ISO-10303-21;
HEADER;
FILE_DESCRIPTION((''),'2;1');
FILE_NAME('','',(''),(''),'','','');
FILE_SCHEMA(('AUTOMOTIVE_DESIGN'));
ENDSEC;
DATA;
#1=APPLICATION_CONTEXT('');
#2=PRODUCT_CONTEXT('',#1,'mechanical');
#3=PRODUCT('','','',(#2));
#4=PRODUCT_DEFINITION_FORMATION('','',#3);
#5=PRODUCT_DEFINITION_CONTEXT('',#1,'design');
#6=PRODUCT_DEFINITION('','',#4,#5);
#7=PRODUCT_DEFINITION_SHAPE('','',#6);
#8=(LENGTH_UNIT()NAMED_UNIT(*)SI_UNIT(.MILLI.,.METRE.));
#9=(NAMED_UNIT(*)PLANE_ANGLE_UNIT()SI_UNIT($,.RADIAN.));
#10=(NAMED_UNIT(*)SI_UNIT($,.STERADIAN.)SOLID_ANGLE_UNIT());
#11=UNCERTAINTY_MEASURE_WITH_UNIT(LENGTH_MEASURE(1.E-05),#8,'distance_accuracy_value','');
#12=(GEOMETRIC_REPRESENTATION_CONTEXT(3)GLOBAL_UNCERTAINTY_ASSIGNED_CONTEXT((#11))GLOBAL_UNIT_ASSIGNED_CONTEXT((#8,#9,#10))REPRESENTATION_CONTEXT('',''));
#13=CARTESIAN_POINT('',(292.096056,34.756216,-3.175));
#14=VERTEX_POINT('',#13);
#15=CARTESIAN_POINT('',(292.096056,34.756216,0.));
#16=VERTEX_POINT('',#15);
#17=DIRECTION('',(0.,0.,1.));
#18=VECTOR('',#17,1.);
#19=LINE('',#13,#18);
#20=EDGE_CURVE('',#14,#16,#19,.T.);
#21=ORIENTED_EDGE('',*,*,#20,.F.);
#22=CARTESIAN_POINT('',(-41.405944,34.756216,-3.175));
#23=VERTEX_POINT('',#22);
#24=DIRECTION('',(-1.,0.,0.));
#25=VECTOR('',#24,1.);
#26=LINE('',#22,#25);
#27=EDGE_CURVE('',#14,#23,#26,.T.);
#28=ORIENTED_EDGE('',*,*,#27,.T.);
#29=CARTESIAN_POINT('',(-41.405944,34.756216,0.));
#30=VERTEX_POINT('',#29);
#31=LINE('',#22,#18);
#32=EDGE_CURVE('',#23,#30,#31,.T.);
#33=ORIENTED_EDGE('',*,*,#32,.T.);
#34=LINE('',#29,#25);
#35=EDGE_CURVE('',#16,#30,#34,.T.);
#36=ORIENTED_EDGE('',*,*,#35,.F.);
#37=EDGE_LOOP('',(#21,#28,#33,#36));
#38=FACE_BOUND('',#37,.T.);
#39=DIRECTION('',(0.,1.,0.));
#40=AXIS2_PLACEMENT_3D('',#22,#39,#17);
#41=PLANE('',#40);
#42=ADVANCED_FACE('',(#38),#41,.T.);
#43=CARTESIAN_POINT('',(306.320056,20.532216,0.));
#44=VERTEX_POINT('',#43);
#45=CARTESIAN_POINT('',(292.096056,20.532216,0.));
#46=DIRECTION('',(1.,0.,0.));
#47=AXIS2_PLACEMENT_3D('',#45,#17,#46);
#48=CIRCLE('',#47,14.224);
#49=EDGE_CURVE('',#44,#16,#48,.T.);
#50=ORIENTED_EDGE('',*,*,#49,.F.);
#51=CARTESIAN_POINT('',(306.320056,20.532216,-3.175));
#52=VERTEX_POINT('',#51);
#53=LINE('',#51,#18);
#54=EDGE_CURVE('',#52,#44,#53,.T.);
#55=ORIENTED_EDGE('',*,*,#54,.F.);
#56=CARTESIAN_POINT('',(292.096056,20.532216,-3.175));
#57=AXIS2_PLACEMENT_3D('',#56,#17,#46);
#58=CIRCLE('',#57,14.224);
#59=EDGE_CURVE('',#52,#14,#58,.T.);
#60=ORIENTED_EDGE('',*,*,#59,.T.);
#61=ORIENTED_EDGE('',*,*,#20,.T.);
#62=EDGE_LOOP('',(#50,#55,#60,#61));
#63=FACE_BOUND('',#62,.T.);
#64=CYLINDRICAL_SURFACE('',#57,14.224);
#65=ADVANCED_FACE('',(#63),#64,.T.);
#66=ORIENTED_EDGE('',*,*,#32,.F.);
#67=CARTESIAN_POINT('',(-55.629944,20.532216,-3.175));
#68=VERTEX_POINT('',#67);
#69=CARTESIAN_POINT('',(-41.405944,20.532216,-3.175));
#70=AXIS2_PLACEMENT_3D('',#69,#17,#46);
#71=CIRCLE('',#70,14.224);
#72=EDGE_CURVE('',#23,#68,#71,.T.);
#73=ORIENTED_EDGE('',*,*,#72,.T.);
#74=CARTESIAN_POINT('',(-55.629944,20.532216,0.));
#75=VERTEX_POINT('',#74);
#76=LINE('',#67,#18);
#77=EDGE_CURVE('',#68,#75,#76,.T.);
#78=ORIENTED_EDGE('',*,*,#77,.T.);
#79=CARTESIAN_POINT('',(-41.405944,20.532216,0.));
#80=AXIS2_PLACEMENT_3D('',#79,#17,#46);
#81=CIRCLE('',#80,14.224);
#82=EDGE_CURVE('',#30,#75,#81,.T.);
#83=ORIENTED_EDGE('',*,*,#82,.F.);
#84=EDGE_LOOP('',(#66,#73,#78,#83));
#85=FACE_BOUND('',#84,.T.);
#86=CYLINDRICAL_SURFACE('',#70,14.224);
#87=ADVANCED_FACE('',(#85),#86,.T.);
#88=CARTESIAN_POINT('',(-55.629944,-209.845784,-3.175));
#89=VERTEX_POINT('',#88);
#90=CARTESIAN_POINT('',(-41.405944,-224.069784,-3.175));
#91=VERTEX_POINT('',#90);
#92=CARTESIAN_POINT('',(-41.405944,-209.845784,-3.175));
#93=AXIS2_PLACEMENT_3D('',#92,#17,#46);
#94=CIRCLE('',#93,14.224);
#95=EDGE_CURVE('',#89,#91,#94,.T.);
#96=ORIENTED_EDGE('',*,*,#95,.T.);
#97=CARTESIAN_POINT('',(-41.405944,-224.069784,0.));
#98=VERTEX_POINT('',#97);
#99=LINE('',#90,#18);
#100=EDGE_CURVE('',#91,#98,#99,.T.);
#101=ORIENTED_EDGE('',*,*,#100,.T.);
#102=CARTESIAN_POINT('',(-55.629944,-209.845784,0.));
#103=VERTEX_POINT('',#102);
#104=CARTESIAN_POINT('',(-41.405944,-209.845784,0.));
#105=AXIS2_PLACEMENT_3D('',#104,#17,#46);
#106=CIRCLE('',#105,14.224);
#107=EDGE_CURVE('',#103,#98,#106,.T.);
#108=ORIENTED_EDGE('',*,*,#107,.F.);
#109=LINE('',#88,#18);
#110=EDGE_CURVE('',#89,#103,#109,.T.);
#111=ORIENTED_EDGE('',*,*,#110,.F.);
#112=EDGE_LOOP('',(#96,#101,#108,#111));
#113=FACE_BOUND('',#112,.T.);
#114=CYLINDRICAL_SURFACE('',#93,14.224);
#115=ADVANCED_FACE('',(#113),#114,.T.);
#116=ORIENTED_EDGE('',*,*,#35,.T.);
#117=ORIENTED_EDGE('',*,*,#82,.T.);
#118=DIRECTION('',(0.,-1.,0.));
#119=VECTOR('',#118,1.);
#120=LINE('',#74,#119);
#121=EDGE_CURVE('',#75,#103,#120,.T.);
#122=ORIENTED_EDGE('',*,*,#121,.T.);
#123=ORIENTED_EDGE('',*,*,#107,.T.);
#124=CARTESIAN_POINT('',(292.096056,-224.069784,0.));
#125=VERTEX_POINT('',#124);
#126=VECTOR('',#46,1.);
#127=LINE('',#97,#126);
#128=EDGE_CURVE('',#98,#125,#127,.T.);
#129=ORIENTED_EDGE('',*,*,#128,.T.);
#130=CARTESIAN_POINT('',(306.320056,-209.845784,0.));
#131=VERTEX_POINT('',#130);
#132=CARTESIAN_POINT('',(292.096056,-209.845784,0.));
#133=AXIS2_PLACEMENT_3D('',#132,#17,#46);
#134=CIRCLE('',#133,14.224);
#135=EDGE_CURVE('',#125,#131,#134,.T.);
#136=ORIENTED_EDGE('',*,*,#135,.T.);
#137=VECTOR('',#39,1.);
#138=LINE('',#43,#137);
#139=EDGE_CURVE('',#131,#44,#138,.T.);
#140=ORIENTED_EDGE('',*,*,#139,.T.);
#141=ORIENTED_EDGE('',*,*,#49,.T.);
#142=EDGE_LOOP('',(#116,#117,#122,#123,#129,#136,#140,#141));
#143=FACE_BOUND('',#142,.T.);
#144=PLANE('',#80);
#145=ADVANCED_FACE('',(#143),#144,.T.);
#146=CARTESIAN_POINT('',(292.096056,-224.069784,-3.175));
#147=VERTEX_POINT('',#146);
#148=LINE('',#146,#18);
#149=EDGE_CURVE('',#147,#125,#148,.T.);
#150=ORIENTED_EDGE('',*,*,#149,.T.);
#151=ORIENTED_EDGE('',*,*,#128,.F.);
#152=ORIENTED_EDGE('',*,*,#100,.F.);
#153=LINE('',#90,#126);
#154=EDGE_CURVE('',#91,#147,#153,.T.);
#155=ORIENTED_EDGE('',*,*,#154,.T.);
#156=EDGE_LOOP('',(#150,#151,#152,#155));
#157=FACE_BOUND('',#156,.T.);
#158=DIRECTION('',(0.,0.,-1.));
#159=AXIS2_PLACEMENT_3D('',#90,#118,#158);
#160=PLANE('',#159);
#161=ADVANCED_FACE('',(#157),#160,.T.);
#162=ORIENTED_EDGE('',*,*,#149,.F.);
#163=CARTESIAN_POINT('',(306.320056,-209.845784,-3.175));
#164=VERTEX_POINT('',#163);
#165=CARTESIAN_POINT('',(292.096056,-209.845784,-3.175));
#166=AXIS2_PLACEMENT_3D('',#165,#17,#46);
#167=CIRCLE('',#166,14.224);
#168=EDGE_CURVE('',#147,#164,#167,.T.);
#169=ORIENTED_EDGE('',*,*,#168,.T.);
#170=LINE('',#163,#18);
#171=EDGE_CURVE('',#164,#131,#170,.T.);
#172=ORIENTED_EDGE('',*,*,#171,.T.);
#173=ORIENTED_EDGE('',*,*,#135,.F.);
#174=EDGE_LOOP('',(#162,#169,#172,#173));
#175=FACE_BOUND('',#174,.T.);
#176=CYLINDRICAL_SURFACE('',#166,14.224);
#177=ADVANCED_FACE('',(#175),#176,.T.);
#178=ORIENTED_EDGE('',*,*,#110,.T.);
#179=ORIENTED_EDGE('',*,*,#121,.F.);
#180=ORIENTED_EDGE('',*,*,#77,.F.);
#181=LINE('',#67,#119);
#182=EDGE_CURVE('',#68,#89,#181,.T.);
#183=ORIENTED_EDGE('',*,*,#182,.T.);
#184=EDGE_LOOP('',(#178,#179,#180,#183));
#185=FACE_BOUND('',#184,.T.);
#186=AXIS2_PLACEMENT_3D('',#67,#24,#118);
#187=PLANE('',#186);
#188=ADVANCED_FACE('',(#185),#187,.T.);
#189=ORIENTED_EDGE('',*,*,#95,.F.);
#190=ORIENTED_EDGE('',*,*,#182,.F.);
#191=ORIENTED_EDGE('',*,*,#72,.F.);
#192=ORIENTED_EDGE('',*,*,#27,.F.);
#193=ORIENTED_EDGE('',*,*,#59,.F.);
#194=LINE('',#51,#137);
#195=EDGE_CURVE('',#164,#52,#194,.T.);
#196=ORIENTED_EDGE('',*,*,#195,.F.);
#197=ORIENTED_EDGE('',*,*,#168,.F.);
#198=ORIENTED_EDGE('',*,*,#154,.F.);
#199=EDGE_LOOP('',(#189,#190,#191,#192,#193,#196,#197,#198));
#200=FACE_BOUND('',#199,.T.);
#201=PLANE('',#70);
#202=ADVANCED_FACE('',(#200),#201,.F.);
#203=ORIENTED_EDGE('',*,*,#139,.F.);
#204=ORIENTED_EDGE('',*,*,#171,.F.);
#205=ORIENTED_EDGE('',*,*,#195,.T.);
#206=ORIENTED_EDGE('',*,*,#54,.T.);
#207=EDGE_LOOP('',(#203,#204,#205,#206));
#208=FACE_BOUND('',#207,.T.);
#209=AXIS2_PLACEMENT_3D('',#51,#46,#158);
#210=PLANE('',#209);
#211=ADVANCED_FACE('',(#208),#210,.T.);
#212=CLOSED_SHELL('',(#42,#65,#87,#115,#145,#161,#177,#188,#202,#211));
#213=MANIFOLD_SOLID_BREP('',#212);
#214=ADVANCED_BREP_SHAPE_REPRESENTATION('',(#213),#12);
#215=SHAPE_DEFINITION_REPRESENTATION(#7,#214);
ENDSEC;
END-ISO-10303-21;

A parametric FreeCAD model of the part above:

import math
import FreeCAD as App
import Part
import Sketcher
Q = App.Units.Quantity

doc = App.newDocument("Part")
body = doc.addObject("PartDesign::Body", "Body")

# Sketch on XY plane
sketch1 = body.newObject("Sketcher::SketchObject", "Sketch")
sketch1.AttachmentSupport = (doc.getObject("XY_Plane"), [""])
sketch1.MapMode = "FlatFace"
sketch1.addGeometry([
    Part.LineSegment(App.Vector(292, 35, 0), App.Vector(-41, 35, 0)),  # 0
    Part.ArcOfCircle(Part.Circle(App.Vector(-41, 21, 0), App.Vector(0, 0, 1), 14), math.radians(90), math.radians(180)),  # 1
    Part.LineSegment(App.Vector(-56, 21, 0), App.Vector(-56, -210, 0)),  # 2
    Part.ArcOfCircle(Part.Circle(App.Vector(-41, -210, 0), App.Vector(0, 0, 1), 14), math.radians(180), math.radians(270)),  # 3
    Part.LineSegment(App.Vector(-41, -224, 0), App.Vector(292, -224, 0)),  # 4
    Part.ArcOfCircle(Part.Circle(App.Vector(292, -210, 0), App.Vector(0, 0, 1), 14), math.radians(-90), math.radians(0)),  # 5
    Part.LineSegment(App.Vector(306, -210, 0), App.Vector(306, 21, 0)),  # 6
    Part.ArcOfCircle(Part.Circle(App.Vector(292, 21, 0), App.Vector(0, 0, 1), 14), math.radians(0), math.radians(90)),  # 7
], False)
sketch1.addConstraint([
    Sketcher.Constraint("Tangent", 0, 2, 1, 1),
    Sketcher.Constraint("Tangent", 1, 2, 2, 1),
    Sketcher.Constraint("Tangent", 2, 2, 3, 1),
    Sketcher.Constraint("Tangent", 3, 2, 4, 1),
    Sketcher.Constraint("Tangent", 4, 2, 5, 1),
    Sketcher.Constraint("Tangent", 5, 2, 6, 1),
    Sketcher.Constraint("Tangent", 6, 2, 7, 1),
    Sketcher.Constraint("Tangent", 7, 2, 0, 1),
    Sketcher.Constraint("Horizontal", 0),
    Sketcher.Constraint("Vertical", 2),
    Sketcher.Constraint("Horizontal", 4),
    Sketcher.Constraint("Vertical", 6),
    Sketcher.Constraint("Equal", 1, 3),
    Sketcher.Constraint("Equal", 3, 5),
    Sketcher.Constraint("Equal", 5, 7),
    Sketcher.Constraint("Radius", 1, Q("0.56 in")),
    Sketcher.Constraint("DistanceX", 0, 2, 0, 1, Q("13.13 in")),
    Sketcher.Constraint("DistanceY", 2, 2, 2, 1, Q("9.07 in")),
    Sketcher.Constraint("DistanceX", 1, 3, -1, 1, Q("41.405944 mm")),
    Sketcher.Constraint("DistanceY", -1, 1, 1, 3, Q("20.532216 mm")),
])
pad1 = body.newObject("PartDesign::Pad", "Pad")
pad1.Profile = sketch1
pad1.Length = Q("0.125 in")
pad1.Reversed = True

doc.recompute()
